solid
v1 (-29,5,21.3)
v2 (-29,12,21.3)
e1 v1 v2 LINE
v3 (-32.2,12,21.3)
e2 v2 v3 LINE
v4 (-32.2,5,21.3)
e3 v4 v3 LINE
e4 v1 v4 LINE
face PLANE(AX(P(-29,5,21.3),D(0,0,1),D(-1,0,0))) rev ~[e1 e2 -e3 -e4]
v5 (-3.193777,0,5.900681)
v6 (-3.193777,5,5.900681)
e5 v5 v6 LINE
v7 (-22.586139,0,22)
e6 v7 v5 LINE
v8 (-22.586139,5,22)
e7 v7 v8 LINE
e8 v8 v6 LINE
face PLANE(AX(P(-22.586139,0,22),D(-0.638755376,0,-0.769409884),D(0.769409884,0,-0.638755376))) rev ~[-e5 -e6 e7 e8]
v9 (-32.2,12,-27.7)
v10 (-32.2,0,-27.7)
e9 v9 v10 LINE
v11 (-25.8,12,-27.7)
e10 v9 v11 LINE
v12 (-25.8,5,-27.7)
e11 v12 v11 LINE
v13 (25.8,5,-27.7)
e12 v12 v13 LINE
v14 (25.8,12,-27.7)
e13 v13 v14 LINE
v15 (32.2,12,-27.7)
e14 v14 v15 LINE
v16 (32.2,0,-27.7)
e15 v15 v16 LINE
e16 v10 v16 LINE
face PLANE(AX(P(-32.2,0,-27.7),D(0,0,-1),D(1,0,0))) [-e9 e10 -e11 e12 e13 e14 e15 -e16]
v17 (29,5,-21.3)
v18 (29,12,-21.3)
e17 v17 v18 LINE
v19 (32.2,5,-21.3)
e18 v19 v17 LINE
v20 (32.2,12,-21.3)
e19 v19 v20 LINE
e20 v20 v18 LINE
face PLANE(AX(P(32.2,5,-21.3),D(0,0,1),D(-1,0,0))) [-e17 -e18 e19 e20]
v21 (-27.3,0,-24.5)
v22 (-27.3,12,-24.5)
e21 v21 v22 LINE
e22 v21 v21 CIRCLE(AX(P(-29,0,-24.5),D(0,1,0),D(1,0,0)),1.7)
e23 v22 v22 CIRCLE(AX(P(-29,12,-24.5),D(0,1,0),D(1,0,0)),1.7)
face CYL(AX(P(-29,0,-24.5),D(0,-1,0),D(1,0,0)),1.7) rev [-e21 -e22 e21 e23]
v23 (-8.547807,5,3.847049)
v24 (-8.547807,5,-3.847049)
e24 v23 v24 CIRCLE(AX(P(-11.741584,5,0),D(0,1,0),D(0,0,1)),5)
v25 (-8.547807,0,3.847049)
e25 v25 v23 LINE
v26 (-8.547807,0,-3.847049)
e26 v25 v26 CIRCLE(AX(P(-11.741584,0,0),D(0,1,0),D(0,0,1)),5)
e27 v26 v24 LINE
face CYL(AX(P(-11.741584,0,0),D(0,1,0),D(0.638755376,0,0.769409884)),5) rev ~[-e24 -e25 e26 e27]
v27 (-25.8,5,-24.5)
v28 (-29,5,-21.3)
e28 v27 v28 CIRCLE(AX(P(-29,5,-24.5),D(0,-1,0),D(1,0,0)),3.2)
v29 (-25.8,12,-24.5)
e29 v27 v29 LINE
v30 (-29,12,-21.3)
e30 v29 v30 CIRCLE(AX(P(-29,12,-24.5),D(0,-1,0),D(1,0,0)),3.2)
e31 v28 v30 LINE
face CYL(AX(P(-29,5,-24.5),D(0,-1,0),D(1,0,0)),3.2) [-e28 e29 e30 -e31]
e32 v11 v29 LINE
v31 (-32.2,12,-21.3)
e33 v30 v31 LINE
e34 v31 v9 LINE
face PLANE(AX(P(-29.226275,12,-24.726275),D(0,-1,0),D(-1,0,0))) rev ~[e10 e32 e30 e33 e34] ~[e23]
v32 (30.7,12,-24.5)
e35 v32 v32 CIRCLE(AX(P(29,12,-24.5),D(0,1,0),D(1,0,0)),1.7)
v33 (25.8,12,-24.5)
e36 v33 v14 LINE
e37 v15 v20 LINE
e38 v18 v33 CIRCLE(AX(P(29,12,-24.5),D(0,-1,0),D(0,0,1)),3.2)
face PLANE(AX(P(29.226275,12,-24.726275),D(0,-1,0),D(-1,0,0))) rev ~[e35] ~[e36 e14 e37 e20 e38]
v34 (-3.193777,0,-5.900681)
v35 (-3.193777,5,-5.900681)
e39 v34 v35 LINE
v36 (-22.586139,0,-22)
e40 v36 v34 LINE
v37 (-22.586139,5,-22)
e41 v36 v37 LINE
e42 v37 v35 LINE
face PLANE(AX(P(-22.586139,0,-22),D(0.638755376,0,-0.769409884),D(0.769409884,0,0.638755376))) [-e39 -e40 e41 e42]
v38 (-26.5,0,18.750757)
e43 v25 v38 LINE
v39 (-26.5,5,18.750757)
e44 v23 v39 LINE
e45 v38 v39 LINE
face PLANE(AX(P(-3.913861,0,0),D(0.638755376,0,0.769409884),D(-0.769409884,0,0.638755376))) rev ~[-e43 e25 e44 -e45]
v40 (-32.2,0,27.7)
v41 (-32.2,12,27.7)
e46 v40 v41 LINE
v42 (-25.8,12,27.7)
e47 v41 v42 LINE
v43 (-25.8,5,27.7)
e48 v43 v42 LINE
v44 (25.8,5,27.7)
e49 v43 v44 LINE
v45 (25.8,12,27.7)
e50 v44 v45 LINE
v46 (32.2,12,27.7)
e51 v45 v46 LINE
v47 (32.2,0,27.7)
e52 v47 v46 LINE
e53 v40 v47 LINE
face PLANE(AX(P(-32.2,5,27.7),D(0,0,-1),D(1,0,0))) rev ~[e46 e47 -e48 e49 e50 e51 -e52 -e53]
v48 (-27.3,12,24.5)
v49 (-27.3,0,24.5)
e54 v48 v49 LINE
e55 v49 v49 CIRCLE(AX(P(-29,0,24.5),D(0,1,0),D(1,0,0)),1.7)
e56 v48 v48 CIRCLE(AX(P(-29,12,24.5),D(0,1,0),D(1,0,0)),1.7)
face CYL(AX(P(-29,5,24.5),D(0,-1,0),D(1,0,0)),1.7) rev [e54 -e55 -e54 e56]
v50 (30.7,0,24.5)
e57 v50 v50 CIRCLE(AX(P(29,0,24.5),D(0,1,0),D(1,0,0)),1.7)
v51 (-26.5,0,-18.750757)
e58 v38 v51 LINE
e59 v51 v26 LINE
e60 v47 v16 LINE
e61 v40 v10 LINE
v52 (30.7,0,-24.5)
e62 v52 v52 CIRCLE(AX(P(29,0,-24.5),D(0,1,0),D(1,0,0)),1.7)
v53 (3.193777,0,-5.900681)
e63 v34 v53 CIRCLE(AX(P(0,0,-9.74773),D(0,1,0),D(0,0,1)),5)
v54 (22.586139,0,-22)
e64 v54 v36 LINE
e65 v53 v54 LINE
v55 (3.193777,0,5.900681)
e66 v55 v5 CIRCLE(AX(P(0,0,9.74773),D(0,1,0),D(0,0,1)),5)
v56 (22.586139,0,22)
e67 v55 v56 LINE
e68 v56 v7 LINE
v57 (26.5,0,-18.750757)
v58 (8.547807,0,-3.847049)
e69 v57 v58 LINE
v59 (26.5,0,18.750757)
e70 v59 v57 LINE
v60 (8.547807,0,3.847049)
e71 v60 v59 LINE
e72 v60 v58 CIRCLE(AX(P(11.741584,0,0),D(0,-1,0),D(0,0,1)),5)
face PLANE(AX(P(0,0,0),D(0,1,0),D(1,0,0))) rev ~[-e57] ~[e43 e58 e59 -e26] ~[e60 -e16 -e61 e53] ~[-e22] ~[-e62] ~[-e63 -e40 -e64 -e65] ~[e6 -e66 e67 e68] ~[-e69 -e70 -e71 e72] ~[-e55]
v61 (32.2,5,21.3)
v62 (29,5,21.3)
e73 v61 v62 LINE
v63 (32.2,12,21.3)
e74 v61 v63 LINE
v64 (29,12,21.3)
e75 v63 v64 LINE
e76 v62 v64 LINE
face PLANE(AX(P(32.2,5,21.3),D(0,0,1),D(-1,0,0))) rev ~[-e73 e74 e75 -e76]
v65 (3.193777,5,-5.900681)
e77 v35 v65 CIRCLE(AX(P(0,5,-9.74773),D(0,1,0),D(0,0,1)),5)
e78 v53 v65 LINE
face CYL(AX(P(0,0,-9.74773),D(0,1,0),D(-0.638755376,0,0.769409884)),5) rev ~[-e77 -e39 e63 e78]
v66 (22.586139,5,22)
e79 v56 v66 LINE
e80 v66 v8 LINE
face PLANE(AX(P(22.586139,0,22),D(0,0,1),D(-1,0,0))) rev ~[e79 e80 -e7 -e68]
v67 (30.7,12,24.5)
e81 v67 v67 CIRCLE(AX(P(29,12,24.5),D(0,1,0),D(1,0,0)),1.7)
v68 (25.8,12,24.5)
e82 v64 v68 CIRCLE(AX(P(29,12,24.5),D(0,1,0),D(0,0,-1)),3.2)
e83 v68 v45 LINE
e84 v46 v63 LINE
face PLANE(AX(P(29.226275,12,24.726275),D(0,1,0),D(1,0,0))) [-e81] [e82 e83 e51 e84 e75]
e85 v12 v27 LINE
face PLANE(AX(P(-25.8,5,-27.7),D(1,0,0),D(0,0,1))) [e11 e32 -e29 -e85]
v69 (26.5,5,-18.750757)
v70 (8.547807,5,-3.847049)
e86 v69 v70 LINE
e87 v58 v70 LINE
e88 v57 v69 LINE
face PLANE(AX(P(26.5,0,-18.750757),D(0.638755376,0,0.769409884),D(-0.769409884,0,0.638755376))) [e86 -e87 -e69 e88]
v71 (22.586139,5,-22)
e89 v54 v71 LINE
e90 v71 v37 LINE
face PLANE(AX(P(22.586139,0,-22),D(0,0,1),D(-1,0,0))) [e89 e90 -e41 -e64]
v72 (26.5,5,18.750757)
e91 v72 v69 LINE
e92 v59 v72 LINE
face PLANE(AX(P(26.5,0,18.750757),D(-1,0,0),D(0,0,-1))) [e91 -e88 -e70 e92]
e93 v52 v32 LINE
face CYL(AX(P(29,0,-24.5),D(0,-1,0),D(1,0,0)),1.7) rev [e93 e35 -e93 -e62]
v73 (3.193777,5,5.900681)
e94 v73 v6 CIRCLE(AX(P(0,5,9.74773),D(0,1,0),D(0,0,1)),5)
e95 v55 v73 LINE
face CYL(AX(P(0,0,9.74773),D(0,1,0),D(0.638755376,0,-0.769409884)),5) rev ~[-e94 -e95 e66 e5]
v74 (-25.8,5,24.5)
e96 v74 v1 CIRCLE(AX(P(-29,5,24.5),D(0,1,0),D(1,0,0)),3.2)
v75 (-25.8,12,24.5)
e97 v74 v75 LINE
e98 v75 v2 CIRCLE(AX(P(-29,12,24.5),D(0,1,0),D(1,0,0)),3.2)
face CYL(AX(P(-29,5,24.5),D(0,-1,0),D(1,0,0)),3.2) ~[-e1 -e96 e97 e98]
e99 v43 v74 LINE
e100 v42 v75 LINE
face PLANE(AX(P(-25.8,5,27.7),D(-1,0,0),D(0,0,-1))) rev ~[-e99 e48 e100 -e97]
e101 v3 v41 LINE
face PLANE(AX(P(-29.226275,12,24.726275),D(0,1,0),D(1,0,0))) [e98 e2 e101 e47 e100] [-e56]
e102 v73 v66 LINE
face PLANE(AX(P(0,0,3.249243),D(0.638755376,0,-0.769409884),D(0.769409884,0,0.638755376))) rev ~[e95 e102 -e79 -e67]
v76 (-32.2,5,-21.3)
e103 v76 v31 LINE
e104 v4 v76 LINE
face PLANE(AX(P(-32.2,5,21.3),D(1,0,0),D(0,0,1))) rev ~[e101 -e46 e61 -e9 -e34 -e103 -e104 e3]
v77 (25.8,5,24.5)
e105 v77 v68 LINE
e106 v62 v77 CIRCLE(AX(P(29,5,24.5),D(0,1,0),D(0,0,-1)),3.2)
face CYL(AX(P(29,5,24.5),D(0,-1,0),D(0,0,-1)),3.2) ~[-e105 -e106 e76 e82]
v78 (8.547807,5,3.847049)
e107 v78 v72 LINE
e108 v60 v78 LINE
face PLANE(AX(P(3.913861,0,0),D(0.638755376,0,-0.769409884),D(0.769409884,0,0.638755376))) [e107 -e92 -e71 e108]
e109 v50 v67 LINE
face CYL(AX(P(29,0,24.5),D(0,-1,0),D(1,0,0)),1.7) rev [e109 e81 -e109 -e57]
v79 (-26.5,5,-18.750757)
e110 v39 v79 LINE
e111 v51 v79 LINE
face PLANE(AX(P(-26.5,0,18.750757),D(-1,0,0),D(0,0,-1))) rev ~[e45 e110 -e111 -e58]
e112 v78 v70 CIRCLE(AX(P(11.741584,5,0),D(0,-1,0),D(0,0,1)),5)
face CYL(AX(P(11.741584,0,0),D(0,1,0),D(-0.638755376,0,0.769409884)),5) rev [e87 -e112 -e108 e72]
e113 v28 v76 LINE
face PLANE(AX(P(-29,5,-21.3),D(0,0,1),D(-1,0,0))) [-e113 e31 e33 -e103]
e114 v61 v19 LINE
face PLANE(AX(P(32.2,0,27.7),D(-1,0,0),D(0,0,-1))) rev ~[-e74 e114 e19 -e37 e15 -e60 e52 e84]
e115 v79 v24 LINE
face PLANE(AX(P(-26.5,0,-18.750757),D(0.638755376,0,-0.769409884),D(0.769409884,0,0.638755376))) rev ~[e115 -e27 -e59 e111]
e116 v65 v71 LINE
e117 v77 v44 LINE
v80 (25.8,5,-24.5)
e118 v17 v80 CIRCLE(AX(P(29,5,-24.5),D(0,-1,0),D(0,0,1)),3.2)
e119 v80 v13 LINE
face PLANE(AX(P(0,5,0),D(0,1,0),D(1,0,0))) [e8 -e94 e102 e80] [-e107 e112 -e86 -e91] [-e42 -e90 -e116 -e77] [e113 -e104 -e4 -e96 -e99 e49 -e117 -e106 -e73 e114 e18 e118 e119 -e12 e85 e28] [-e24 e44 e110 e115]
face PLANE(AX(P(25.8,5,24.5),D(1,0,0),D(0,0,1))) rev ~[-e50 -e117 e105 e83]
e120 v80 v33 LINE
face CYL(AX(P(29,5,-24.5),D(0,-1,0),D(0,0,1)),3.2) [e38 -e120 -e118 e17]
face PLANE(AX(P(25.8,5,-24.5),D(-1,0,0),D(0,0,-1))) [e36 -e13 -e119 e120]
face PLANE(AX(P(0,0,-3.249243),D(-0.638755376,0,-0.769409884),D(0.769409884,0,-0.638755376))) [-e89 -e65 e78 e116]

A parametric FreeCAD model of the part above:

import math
import FreeCAD as App
import Part
import Sketcher
from FreeCAD import Vector
Q = App.Units.Quantity


def edges_at(feature, points):
    """Names of the edges that pass closest to the given points."""
    edges = feature.Shape.Edges
    near = lambda p: min(range(len(edges)), key=lambda i: edges[i].distToShape(Part.Vertex(*p))[0])
    return sorted({f"Edge{near(p) + 1}" for p in points})


def add_polygon(sketch, points):
    """Adds a closed chain of lines whose ends are joined by coincident constraints."""
    first, n = sketch.GeometryCount, len(points)
    for a, b in zip(points, points[1:] + points[:1]):
        sketch.addGeometry(Part.LineSegment(App.Vector(*a, 0), App.Vector(*b, 0)), False)
    for i in range(n):
        sketch.addConstraint(Sketcher.Constraint("Coincident", first + i, 2, first + (i + 1) % n, 1))

doc = App.newDocument("Part")
params = doc.addObject("Spreadsheet::Sheet", "Params")
for row, (alias, value) in enumerate([
    ("sketch1_diameter", "3.4 mm"),
    ("sketch1_width", "64.4 mm"),
    ("sketch1_height", "55.4 mm"),
    ("pad1_length", "5 mm"),
    ("fillet_radius", "5 mm"),
    ("sketch2_diameter", "3.4 mm"),
    ("sketch2_radius", "3.2 mm"),
    ("sketch2_width", "6.4 mm"),
    ("pad2_length", "7 mm"),
], start=1):
    params.set(f"A{row}", alias)
    params.set(f"B{row}", "=" + value)
    params.setAlias(f"B{row}", alias)

body = doc.addObject("PartDesign::Body", "Body")

sketch1 = body.newObject("Sketcher::SketchObject", "Sketch")
sketch1.AttachmentSupport = (doc.getObject("XZ_Plane"), [""])
sketch1.MapMode = "FlatFace"
add_polygon(sketch1, [(-32.2, -27.7), (-32.2, 27.7), (32.2, 27.7), (32.2, -27.7)])
sketch1.addGeometry(Part.Circle(Vector(-29, 24.5, 0), Vector(0, 0, 1), 1.7), False)
sketch1.addGeometry(Part.Circle(Vector(29, 24.5, 0), Vector(0, 0, 1), 1.7), False)
add_polygon(sketch1, [(22.6, 22), (-22.6, 22), (0, 3.2)])
add_polygon(sketch1, [(-3.9, 0), (-26.5, 18.8), (-26.5, -18.8)])
sketch1.addGeometry(Part.Circle(Vector(-29, -24.5, 0), Vector(0, 0, 1), 1.7), False)
add_polygon(sketch1, [(26.5, -18.8), (26.5, 18.8), (3.9, 0)])
add_polygon(sketch1, [(0, -3.2), (-22.6, -22), (22.6, -22)])
sketch1.addGeometry(Part.Circle(Vector(29, -24.5, 0), Vector(0, 0, 1), 1.7), False)
sketch1.addConstraint(Sketcher.Constraint("Vertical", 0))
sketch1.addConstraint(Sketcher.Constraint("Horizontal", 1))
sketch1.addConstraint(Sketcher.Constraint("Vertical", 2))
sketch1.addConstraint(Sketcher.Constraint("Horizontal", 3))
sketch1.addConstraint(Sketcher.Constraint("Horizontal", 6))
sketch1.addConstraint(Sketcher.Constraint("Vertical", 10))
sketch1.addConstraint(Sketcher.Constraint("Vertical", 13))
sketch1.addConstraint(Sketcher.Constraint("Horizontal", 17))
sketch1.addConstraint(Sketcher.Constraint("Equal", 4, 5))
sketch1.addConstraint(Sketcher.Constraint("Equal", 5, 12))
sketch1.addConstraint(Sketcher.Constraint("Equal", 12, 19))
sketch1.addConstraint(Sketcher.Constraint("Symmetric", 5, 3, 12, 3, -1, 1))
sketch1.addConstraint(Sketcher.Constraint("Symmetric", 4, 3, 19, 3, -1, 1))
sketch1.addConstraint(Sketcher.Constraint("Symmetric", 0, 2, 2, 2, -1, 1))
sketch1.addConstraint(Sketcher.Constraint("Symmetric", 10, 2, 13, 2, -1, 1))
sketch1.addConstraint(Sketcher.Constraint("Symmetric", 11, 2, 14, 2, -1, 1))
sketch1.addConstraint(Sketcher.Constraint("Symmetric", 8, 2, 16, 2, -1, 1))
sketch1.addConstraint(Sketcher.Constraint("Symmetric", 7, 2, 18, 2, -1, 1))
sketch1.addConstraint(Sketcher.Constraint("Symmetric", 4, 3, 5, 3, -2))
sketch1.addConstraint(Sketcher.Constraint("PointOnObject", 7, 2, -2))
sketch1.addConstraint(Sketcher.Constraint("PointOnObject", 11, 2, -1))
sketch1.addConstraint(Sketcher.Constraint("Parallel", 7, 9))
sketch1.addConstraint(Sketcher.Constraint("Parallel", 8, 11))
sketch1.addConstraint(Sketcher.Constraint("Parallel", 9, 15))
sketch1.addConstraint(Sketcher.Constraint("Parallel", 15, 18))
sketch1.addConstraint(Sketcher.Constraint("Horizontal", 9, 2, 13, 2))
sketch1.addConstraint(Sketcher.Constraint("Equal", 8, 9))
sketch1.addConstraint(Sketcher.Constraint("Diameter", 4, Q("3.4 mm")))
sketch1.addConstraint(Sketcher.Constraint("DistanceX", 1, 1, 1, 2, Q("64.4 mm")))
sketch1.addConstraint(Sketcher.Constraint("DistanceY", 0, 1, 0, 2, Q("55.4 mm")))
sketch1.addConstraint(Sketcher.Constraint("DistanceX", 4, 3, -1, 1, Q("29 mm")))
sketch1.addConstraint(Sketcher.Constraint("DistanceY", -1, 1, 6, 2, Q("22 mm")))
sketch1.addConstraint(Sketcher.Constraint("DistanceY", 12, 3, 4, 3, Q("49 mm")))
sketch1.addConstraint(Sketcher.Constraint("DistanceX", 9, 2, -1, 1, Q("26.5 mm")))
sketch1.addConstraint(Sketcher.Constraint("DistanceX", 6, 2, 6, 1, Q("45.172277 mm")))
sketch1.addConstraint(Sketcher.Constraint("DistanceY", 10, 2, 10, 1, Q("37.501513 mm")))
sketch1.setExpression("Constraints[43]", "Params.sketch1_diameter")
sketch1.setExpression("Constraints[44]", "Params.sketch1_width")
sketch1.setExpression("Constraints[45]", "Params.sketch1_height")
pad1 = body.newObject("PartDesign::Pad", "Pad")
pad1.Profile = sketch1
pad1.setExpression("Length", "Params.pad1_length")
pad1.Reversed = True
doc.recompute()

fillet = body.newObject("PartDesign::Fillet", "Fillet")
fillet.Base = (pad1, edges_at(pad1, [
    (0, 2.5, 3.249),
    (3.914, 2.5, 0),
    (-3.914, 2.5, 0),
    (0, 2.5, -3.249),
]))
fillet.setExpression("Radius", "Params.fillet_radius")

sketch2 = body.newObject("Sketcher::SketchObject", "Sketch001")
sketch2.AttachmentSupport = (doc.getObject("XZ_Plane"), [""])
sketch2.MapMode = "FlatFace"
sketch2.AttachmentOffset = App.Placement(Vector(0, 0, -5), App.Rotation())
sketch2.addGeometry(Part.LineSegment(Vector(-32.2, 21.3, 0), Vector(-32.2, 27.7, 0)), False)
sketch2.addGeometry(Part.LineSegment(Vector(-32.2, 27.7, 0), Vector(-25.8, 27.7, 0)), False)
sketch2.addGeometry(Part.LineSegment(Vector(-25.8, 27.7, 0), Vector(-25.8, 24.5, 0)), False)
sketch2.addGeometry(Part.ArcOfCircle(Part.Circle(Vector(-29, 24.5, 0), Vector(0, 0, 1), 3.2), math.radians(-90), math.radians(0)), False)
sketch2.addGeometry(Part.LineSegment(Vector(-29, 21.3, 0), Vector(-32.2, 21.3, 0)), False)
sketch2.addGeometry(Part.Circle(Vector(-29, 24.5, 0), Vector(0, 0, 1), 1.7), False)
sketch2.addGeometry(Part.LineSegment(Vector(-32.2, -21.3, 0), Vector(-29, -21.3, 0)), False)
sketch2.addGeometry(Part.ArcOfCircle(Part.Circle(Vector(-29, -24.5, 0), Vector(0, 0, 1), 3.2), math.radians(0), math.radians(90)), False)
sketch2.addGeometry(Part.LineSegment(Vector(-25.8, -24.5, 0), Vector(-25.8, -27.7, 0)), False)
sketch2.addGeometry(Part.LineSegment(Vector(-25.8, -27.7, 0), Vector(-32.2, -27.7, 0)), False)
sketch2.addGeometry(Part.LineSegment(Vector(-32.2, -27.7, 0), Vector(-32.2, -21.3, 0)), False)
sketch2.addGeometry(Part.Circle(Vector(-29, -24.5, 0), Vector(0, 0, 1), 1.7), False)
sketch2.addGeometry(Part.LineSegment(Vector(25.8, -27.7, 0), Vector(25.8, -24.5, 0)), False)
sketch2.addGeometry(Part.ArcOfCircle(Part.Circle(Vector(29, -24.5, 0), Vector(0, 0, 1), 3.2), math.radians(90), math.radians(180)), False)
sketch2.addGeometry(Part.LineSegment(Vector(29, -21.3, 0), Vector(32.2, -21.3, 0)), False)
sketch2.addGeometry(Part.LineSegment(Vector(32.2, -21.3, 0), Vector(32.2, -27.7, 0)), False)
sketch2.addGeometry(Part.LineSegment(Vector(32.2, -27.7, 0), Vector(25.8, -27.7, 0)), False)
sketch2.addGeometry(Part.Circle(Vector(29, -24.5, 0), Vector(0, 0, 1), 1.7), False)
sketch2.addGeometry(Part.LineSegment(Vector(25.8, 24.5, 0), Vector(25.8, 27.7, 0)), False)
sketch2.addGeometry(Part.LineSegment(Vector(25.8, 27.7, 0), Vector(32.2, 27.7, 0)), False)
sketch2.addGeometry(Part.LineSegment(Vector(32.2, 27.7, 0), Vector(32.2, 21.3, 0)), False)
sketch2.addGeometry(Part.LineSegment(Vector(32.2, 21.3, 0), Vector(29, 21.3, 0)), False)
sketch2.addGeometry(Part.ArcOfCircle(Part.Circle(Vector(29, 24.5, 0), Vector(0, 0, 1), 3.2), math.radians(180), math.radians(270)), False)
sketch2.addGeometry(Part.Circle(Vector(29, 24.5, 0), Vector(0, 0, 1), 1.7), False)
sketch2.addConstraint(Sketcher.Constraint("Coincident", 0, 2, 1, 1))
sketch2.addConstraint(Sketcher.Constraint("Coincident", 1, 2, 2, 1))
sketch2.addConstraint(Sketcher.Constraint("Tangent", 2, 2, 3, 2))
sketch2.addConstraint(Sketcher.Constraint("Tangent", 3, 1, 4, 1))
sketch2.addConstraint(Sketcher.Constraint("Coincident", 4, 2, 0, 1))
sketch2.addConstraint(Sketcher.Constraint("Tangent", 6, 2, 7, 2))
sketch2.addConstraint(Sketcher.Constraint("Tangent", 7, 1, 8, 1))
sketch2.addConstraint(Sketcher.Constraint("Coincident", 8, 2, 9, 1))
sketch2.addConstraint(Sketcher.Constraint("Coincident", 9, 2, 10, 1))
sketch2.addConstraint(Sketcher.Constraint("Coincident", 10, 2, 6, 1))
sketch2.addConstraint(Sketcher.Constraint("Tangent", 12, 2, 13, 2))
sketch2.addConstraint(Sketcher.Constraint("Tangent", 13, 1, 14, 1))
sketch2.addConstraint(Sketcher.Constraint("Coincident", 14, 2, 15, 1))
sketch2.addConstraint(Sketcher.Constraint("Coincident", 15, 2, 16, 1))
sketch2.addConstraint(Sketcher.Constraint("Coincident", 16, 2, 12, 1))
sketch2.addConstraint(Sketcher.Constraint("Coincident", 18, 2, 19, 1))
sketch2.addConstraint(Sketcher.Constraint("Coincident", 19, 2, 20, 1))
sketch2.addConstraint(Sketcher.Constraint("Coincident", 20, 2, 21, 1))
sketch2.addConstraint(Sketcher.Constraint("Tangent", 21, 2, 22, 2))
sketch2.addConstraint(Sketcher.Constraint("Tangent", 22, 1, 18, 1))
sketch2.addConstraint(Sketcher.Constraint("Vertical", 0))
sketch2.addConstraint(Sketcher.Constraint("Horizontal", 1))
sketch2.addConstraint(Sketcher.Constraint("Vertical", 2))
sketch2.addConstraint(Sketcher.Constraint("Horizontal", 4))
sketch2.addConstraint(Sketcher.Constraint("Horizontal", 6))
sketch2.addConstraint(Sketcher.Constraint("Vertical", 8))
sketch2.addConstraint(Sketcher.Constraint("Horizontal", 9))
sketch2.addConstraint(Sketcher.Constraint("Vertical", 10))
sketch2.addConstraint(Sketcher.Constraint("Vertical", 12))
sketch2.addConstraint(Sketcher.Constraint("Horizontal", 14))
sketch2.addConstraint(Sketcher.Constraint("Vertical", 15))
sketch2.addConstraint(Sketcher.Constraint("Horizontal", 16))
sketch2.addConstraint(Sketcher.Constraint("Vertical", 18))
sketch2.addConstraint(Sketcher.Constraint("Horizontal", 19))
sketch2.addConstraint(Sketcher.Constraint("Vertical", 20))
sketch2.addConstraint(Sketcher.Constraint("Horizontal", 21))
sketch2.addConstraint(Sketcher.Constraint("Coincident", 5, 3, 3, 3))
sketch2.addConstraint(Sketcher.Constraint("Coincident", 11, 3, 7, 3))
sketch2.addConstraint(Sketcher.Constraint("Coincident", 17, 3, 13, 3))
sketch2.addConstraint(Sketcher.Constraint("Coincident", 23, 3, 22, 3))
sketch2.addConstraint(Sketcher.Constraint("Equal", 3, 7))
sketch2.addConstraint(Sketcher.Constraint("Equal", 5, 11))
sketch2.addConstraint(Sketcher.Constraint("Equal", 7, 13))
sketch2.addConstraint(Sketcher.Constraint("Equal", 11, 17))
sketch2.addConstraint(Sketcher.Constraint("Equal", 13, 22))
sketch2.addConstraint(Sketcher.Constraint("Equal", 17, 23))
sketch2.addConstraint(Sketcher.Constraint("Symmetric", 3, 3, 13, 3, -1, 1))
sketch2.addConstraint(Sketcher.Constraint("Symmetric", 7, 3, 22, 3, -1, 1))
sketch2.addConstraint(Sketcher.Constraint("Symmetric", 0, 2, 15, 2, -1, 1))
sketch2.addConstraint(Sketcher.Constraint("Symmetric", 9, 2, 19, 2, -1, 1))
sketch2.addConstraint(Sketcher.Constraint("Symmetric", 7, 3, 13, 3, -2))
sketch2.addConstraint(Sketcher.Constraint("Symmetric", 9, 2, 15, 2, -2))
sketch2.addConstraint(Sketcher.Constraint("Equal", 19, 0))
sketch2.addConstraint(Sketcher.Constraint("Diameter", 5, Q("3.4 mm")))
sketch2.addConstraint(Sketcher.Constraint("Radius", 3, Q("3.2 mm")))
sketch2.addConstraint(Sketcher.Constraint("DistanceX", 1, 1, 1, 2, Q("6.4 mm")))
sketch2.addConstraint(Sketcher.Constraint("DistanceX", 3, 3, -1, 1, Q("29 mm")))
sketch2.addConstraint(Sketcher.Constraint("DistanceY", 7, 3, 3, 3, Q("49 mm")))
sketch2.setExpression("Constraints[53]", "Params.sketch2_diameter")
sketch2.setExpression("Constraints[54]", "Params.sketch2_radius")
sketch2.setExpression("Constraints[55]", "Params.sketch2_width")
pad2 = body.newObject("PartDesign::Pad", "Pad001")
pad2.Profile = sketch2
pad2.setExpression("Length", "Params.pad2_length")
pad2.Reversed = True

doc.recompute()
